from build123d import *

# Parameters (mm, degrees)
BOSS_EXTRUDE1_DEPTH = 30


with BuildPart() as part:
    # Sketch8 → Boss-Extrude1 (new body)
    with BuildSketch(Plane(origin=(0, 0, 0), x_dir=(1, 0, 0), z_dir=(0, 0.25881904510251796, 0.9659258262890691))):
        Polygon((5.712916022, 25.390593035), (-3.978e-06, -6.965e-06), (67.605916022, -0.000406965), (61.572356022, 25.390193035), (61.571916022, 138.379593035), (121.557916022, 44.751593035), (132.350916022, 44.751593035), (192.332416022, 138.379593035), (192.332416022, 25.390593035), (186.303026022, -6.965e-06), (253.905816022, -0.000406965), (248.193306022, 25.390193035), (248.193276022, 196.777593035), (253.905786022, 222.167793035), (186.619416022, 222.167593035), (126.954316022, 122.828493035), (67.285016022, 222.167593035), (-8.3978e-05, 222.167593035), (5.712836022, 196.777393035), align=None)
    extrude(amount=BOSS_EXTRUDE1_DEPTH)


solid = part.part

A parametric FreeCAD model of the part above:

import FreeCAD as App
import Part
import Sketcher
from FreeCAD import Vector


def add_polygon(sketch, points):
    """Adds a closed chain of lines whose ends are joined by coincident constraints."""
    first, n = sketch.GeometryCount, len(points)
    for a, b in zip(points, points[1:] + points[:1]):
        sketch.addGeometry(Part.LineSegment(App.Vector(*a, 0), App.Vector(*b, 0)), False)
    for i in range(n):
        sketch.addConstraint(Sketcher.Constraint("Coincident", first + i, 2, first + (i + 1) % n, 1))

doc = App.newDocument("Part")
body = doc.addObject("PartDesign::Body", "Body")

# Sketch on an angled plane
sketch1 = doc.addObject("Sketcher::SketchObject", "Sketch")
body.addObject(sketch1)
sketch1.Placement = App.Placement(Vector(0, 0, 0), App.Rotation(Vector(1, 0, 0), Vector(0, 0.965925826, -0.258819045), Vector(0, 0.258819045, 0.965925826), "ZXY"))
add_polygon(sketch1, [(5.712916, 25.390593), (-0.000004, -0.000007), (67.605916, -0.000407), (61.572356, 25.390193), (61.571916, 138.379593), (121.557916, 44.751593), (132.350916, 44.751593), (192.332416, 138.379593), (192.332416, 25.390593), (186.303026, -0.000007), (253.905816, -0.000407), (248.193306, 25.390193), (248.193276, 196.777593), (253.905786, 222.167793), (186.619416, 222.167593), (126.954316, 122.828493), (67.285016, 222.167593), (-0.000084, 222.167593), (5.712836, 196.777393)])  # lines 0-18
sketch1.addConstraint([
    Sketcher.Constraint("Horizontal", 5),
    Sketcher.Constraint("Vertical", 7),
    Sketcher.Constraint("Horizontal", 16),
    Sketcher.Constraint("Coincident", 0, 2, -1, 1),
    Sketcher.Constraint("DistanceX", 5, 1, 5, 2, 10.793),
    Sketcher.Constraint("DistanceY", 7, 2, 7, 1, 112.989),
    Sketcher.Constraint("DistanceY", 1, 2, 3, 2, 138.38),
    Sketcher.Constraint("DistanceY", 1, 2, 6, 2, 138.38),
    Sketcher.Constraint("DistanceY", 9, 2, 6, 2, 138.38),
    Sketcher.Constraint("DistanceY", 11, 2, 13, 2, 25.39),
    Sketcher.Constraint("DistanceY", 11, 2, 15, 2, 25.39),
    Sketcher.Constraint("DistanceX", 16, 2, 16, 1, 67.2851),
    Sketcher.Constraint("DistanceX", 3, 2, 1, 2, 6.034),
    Sketcher.Constraint("DistanceX", 1, 2, 4, 2, 53.952),
    Sketcher.Constraint("DistanceY", 1, 2, 4, 2, 44.752),
    Sketcher.Constraint("DistanceY", 6, 2, 11, 2, 58.398),
    Sketcher.Constraint("DistanceX", 13, 2, 6, 2, 5.713),
    Sketcher.Constraint("DistanceX", 16, 2, 3, 2, 61.572),
    Sketcher.Constraint("DistanceX", 18, 2, 1, 2, 61.893),
    Sketcher.Constraint("DistanceY", 1, 2, 18, 2, 25.391),
    Sketcher.Constraint("Distance", 3, 112.9894),
    Sketcher.Constraint("Distance", 11, 171.3874),
    Sketcher.Constraint("Distance", 18, 171.3868),
    Sketcher.Constraint("DistanceY", 1, 2, 0, 2, 0.0004),
    Sketcher.Constraint("DistanceX", 5, 2, 6, 2, 59.9815),
    Sketcher.Constraint("DistanceY", 8, 2, 7, 2, 25.3906),
    Sketcher.Constraint("DistanceX", 7, 2, 9, 2, 61.5734),
    Sketcher.Constraint("DistanceY", 11, 2, 12, 2, 25.3902),
    Sketcher.Constraint("DistanceX", 14, 2, 6, 2, 65.3781),
    Sketcher.Constraint("DistanceY", 14, 2, 6, 2, 15.5511),
    Sketcher.Constraint("Distance", 1, 67.60592),
    Sketcher.Constraint("Distance", 8, 26.096669),
    Sketcher.Constraint("Distance", 13, 67.28637),
    Sketcher.Constraint("DistanceX", 2, 2, 1, 2, 6.03356),
    Sketcher.Constraint("DistanceX", 10, 2, 9, 2, 5.71251),
    Sketcher.Constraint("DistanceX", 6, 2, 11, 2, 55.86086),
    Sketcher.Constraint("DistanceX", 16, 2, 17, 2, 5.71292),
])
pad1 = doc.addObject("PartDesign::Pad", "Pad")
body.addObject(pad1)
pad1.Profile = sketch1
pad1.Length = 30

doc.recompute()
